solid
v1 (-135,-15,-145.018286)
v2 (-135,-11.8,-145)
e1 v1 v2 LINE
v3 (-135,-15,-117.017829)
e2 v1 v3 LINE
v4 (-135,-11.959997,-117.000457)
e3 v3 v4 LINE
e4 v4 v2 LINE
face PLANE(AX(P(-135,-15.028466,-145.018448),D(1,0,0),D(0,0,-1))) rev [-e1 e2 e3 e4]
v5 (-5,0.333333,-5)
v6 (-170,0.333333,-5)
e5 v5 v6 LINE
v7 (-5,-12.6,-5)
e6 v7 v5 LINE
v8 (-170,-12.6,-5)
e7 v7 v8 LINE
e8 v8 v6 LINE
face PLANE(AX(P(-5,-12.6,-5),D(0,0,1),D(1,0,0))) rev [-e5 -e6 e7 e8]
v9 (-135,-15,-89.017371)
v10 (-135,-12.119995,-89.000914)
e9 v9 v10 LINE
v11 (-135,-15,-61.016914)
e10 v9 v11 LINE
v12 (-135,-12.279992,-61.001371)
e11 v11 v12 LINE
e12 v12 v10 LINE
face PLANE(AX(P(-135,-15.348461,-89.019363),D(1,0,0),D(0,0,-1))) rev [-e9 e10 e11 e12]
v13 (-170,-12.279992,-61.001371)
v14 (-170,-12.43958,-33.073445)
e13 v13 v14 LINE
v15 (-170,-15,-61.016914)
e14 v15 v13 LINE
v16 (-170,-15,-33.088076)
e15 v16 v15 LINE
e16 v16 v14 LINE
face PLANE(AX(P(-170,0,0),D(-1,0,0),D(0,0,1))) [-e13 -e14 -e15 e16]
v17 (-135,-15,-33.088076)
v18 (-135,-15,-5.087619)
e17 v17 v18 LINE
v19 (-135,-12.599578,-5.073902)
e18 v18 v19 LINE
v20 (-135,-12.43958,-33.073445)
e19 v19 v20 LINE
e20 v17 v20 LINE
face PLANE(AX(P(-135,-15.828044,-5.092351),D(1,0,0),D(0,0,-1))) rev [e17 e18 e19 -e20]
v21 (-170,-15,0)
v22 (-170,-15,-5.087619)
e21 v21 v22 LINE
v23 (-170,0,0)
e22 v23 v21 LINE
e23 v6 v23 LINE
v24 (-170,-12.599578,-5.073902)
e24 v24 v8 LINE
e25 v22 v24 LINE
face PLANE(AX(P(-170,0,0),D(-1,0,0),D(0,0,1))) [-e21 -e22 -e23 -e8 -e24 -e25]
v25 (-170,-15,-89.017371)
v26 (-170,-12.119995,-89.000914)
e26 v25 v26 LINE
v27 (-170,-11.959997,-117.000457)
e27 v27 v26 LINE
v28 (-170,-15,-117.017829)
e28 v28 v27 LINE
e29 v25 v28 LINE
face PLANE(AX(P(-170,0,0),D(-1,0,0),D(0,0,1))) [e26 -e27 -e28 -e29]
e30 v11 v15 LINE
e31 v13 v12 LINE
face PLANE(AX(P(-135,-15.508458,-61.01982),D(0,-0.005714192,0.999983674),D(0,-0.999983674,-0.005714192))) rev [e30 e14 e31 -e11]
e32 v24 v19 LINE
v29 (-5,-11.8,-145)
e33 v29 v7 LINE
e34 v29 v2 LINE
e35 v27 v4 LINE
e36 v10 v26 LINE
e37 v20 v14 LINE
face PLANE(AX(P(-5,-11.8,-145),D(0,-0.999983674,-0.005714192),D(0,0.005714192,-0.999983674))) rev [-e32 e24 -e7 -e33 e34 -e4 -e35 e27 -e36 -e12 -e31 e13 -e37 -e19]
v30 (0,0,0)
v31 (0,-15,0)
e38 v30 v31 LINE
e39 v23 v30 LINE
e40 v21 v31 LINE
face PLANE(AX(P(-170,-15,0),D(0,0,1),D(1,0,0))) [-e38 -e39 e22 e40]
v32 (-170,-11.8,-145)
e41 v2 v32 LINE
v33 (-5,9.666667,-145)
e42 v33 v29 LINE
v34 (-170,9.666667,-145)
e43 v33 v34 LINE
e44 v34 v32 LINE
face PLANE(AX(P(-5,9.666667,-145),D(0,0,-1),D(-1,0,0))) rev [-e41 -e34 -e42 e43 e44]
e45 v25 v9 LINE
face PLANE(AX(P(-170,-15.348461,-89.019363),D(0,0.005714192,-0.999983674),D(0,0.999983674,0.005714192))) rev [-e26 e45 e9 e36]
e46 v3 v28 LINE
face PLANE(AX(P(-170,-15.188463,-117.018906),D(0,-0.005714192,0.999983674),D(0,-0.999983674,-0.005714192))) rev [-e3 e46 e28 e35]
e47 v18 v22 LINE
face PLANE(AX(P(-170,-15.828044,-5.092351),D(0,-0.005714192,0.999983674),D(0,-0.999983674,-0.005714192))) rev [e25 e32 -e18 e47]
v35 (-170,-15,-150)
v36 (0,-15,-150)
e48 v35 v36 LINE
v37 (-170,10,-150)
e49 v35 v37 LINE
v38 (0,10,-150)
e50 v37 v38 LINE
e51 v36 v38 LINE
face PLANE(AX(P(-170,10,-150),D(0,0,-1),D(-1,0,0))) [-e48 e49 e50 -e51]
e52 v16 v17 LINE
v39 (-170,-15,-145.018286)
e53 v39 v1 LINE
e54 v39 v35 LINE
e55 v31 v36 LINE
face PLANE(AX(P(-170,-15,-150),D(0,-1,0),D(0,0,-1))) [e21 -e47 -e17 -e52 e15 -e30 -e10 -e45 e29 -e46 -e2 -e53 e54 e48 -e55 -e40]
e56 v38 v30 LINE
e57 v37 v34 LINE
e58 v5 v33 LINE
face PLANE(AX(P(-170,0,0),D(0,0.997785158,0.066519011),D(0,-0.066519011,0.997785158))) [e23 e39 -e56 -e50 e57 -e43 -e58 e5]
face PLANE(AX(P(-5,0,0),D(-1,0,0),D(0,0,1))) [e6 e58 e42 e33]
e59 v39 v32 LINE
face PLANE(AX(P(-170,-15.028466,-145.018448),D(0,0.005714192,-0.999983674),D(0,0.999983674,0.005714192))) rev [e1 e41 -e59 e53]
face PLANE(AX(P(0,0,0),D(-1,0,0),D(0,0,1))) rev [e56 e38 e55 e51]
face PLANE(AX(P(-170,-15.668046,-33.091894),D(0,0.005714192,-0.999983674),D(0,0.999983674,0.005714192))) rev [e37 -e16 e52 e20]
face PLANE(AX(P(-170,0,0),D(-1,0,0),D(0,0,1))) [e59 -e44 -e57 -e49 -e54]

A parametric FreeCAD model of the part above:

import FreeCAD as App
import Part
import Sketcher
from FreeCAD import Vector
Q = App.Units.Quantity

doc = App.newDocument("Part")
body = doc.addObject("PartDesign::Body", "Body")

# Sketch on YZ plane
sketch1 = doc.addObject("Sketcher::SketchObject", "Sketch")
body.addObject(sketch1)
sketch1.AttachmentSupport = (doc.YZ_Plane, [""])
sketch1.MapMode = "FlatFace"
sketch1.addGeometry(Part.LineSegment(Vector(-15, -150, 0), Vector(10, -150, 0)), False)
sketch1.addGeometry(Part.LineSegment(Vector(10, -150, 0), Vector(0, 0, 0)), False)
sketch1.addGeometry(Part.LineSegment(Vector(0, 0, 0), Vector(-15, 0, 0)), False)
sketch1.addGeometry(Part.LineSegment(Vector(-15, 0, 0), Vector(-15, -150, 0)), False)
sketch1.addConstraint(Sketcher.Constraint("Coincident", 0, 2, 1, 1))
sketch1.addConstraint(Sketcher.Constraint("Coincident", 1, 2, 2, 1))
sketch1.addConstraint(Sketcher.Constraint("Coincident", 2, 2, 3, 1))
sketch1.addConstraint(Sketcher.Constraint("Coincident", 3, 2, 0, 1))
sketch1.addConstraint(Sketcher.Constraint("Horizontal", 0))
sketch1.addConstraint(Sketcher.Constraint("Horizontal", 2))
sketch1.addConstraint(Sketcher.Constraint("Vertical", 3))
sketch1.addConstraint(Sketcher.Constraint("Coincident", 1, 2, -1, 1))
sketch1.addConstraint(Sketcher.Constraint("DistanceX", 0, 1, 0, 2, Q("25 mm")))
sketch1.addConstraint(Sketcher.Constraint("DistanceX", 2, 2, 2, 1, Q("15 mm")))
sketch1.addConstraint(Sketcher.Constraint("DistanceY", 3, 2, 3, 1, Q("150 mm")))
pad1 = doc.addObject("PartDesign::Pad", "Pad")
body.addObject(pad1)
pad1.Profile = sketch1
pad1.Length = 170
pad1.Reversed = True

# Sketch on YZ plane
sketch2 = doc.addObject("Sketcher::SketchObject", "Sketch001")
body.addObject(sketch2)
sketch2.AttachmentSupport = (doc.YZ_Plane, [""])
sketch2.MapMode = "FlatFace"
sketch2.AttachmentOffset = App.Placement(Vector(0, 0, -170), App.Rotation())
sketch2.addGeometry(Part.LineSegment(Vector(9.666667, -145, 0), Vector(-11.8, -145, 0)), False)
sketch2.addGeometry(Part.LineSegment(Vector(-11.8, -145, 0), Vector(-12.6, -5, 0)), False)
sketch2.addGeometry(Part.LineSegment(Vector(-12.6, -5, 0), Vector(0.333333, -5, 0)), False)
sketch2.addGeometry(Part.LineSegment(Vector(0.333333, -5, 0), Vector(9.666667, -145, 0)), False)
sketch2.addConstraint(Sketcher.Constraint("Coincident", 0, 2, 1, 1))
sketch2.addConstraint(Sketcher.Constraint("Coincident", 1, 2, 2, 1))
sketch2.addConstraint(Sketcher.Constraint("Coincident", 2, 2, 3, 1))
sketch2.addConstraint(Sketcher.Constraint("Coincident", 3, 2, 0, 1))
sketch2.addConstraint(Sketcher.Constraint("Horizontal", 0))
sketch2.addConstraint(Sketcher.Constraint("Horizontal", 2))
sketch2.addConstraint(Sketcher.Constraint("DistanceY", 0, 2, -1, 1, Q("145 mm")))
sketch2.addConstraint(Sketcher.Constraint("DistanceY", 1, 2, -1, 1, Q("5 mm")))
sketch2.addConstraint(Sketcher.Constraint("DistanceX", 0, 2, -1, 1, Q("11.8 mm")))
sketch2.addConstraint(Sketcher.Constraint("DistanceX", 1, 2, -1, 1, Q("12.6 mm")))
sketch2.addConstraint(Sketcher.Constraint("DistanceX", 0, 2, 0, 1, Q("21.466667 mm")))
sketch2.addConstraint(Sketcher.Constraint("DistanceX", 2, 1, 2, 2, Q("12.933333 mm")))
pocket1 = doc.addObject("PartDesign::Pocket", "Pocket")
body.addObject(pocket1)
pocket1.Profile = sketch2
pocket1.Length = 165
pocket1.Reversed = True

# Sketch on an angled plane
sketch3 = doc.addObject("Sketcher::SketchObject", "Sketch002")
body.addObject(sketch3)
sketch3.Placement = App.Placement(Vector(0, -12.628159, -0.072161), App.Rotation(Vector(1, 0, 0), Vector(0, 0.005714192, -0.999983674), Vector(0, 0.999983674, 0.005714192), "ZXY"))
sketch3.addGeometry(Part.LineSegment(Vector(-170, 144.930205, 0), Vector(-170, 116.930205, 0)), False)
sketch3.addGeometry(Part.LineSegment(Vector(-170, 116.930205, 0), Vector(-135, 116.930205, 0)), False)
sketch3.addGeometry(Part.LineSegment(Vector(-135, 116.930205, 0), Vector(-135, 144.930205, 0)), False)
sketch3.addGeometry(Part.LineSegment(Vector(-135, 144.930205, 0), Vector(-170, 144.930205, 0)), False)
sketch3.addConstraint(Sketcher.Constraint("Coincident", 0, 2, 1, 1))
sketch3.addConstraint(Sketcher.Constraint("Coincident", 1, 2, 2, 1))
sketch3.addConstraint(Sketcher.Constraint("Coincident", 2, 2, 3, 1))
sketch3.addConstraint(Sketcher.Constraint("Coincident", 3, 2, 0, 1))
sketch3.addConstraint(Sketcher.Constraint("Vertical", 0))
sketch3.addConstraint(Sketcher.Constraint("Horizontal", 1))
sketch3.addConstraint(Sketcher.Constraint("Vertical", 2))
sketch3.addConstraint(Sketcher.Constraint("Horizontal", 3))
sketch3.addConstraint(Sketcher.Constraint("DistanceX", 1, 1, 1, 2, Q("35 mm")))
sketch3.addConstraint(Sketcher.Constraint("DistanceY", 0, 2, 0, 1, Q("28 mm")))
sketch3.addConstraint(Sketcher.Constraint("DistanceX", 0, 2, -1, 1, Q("170 mm")))
sketch3.addConstraint(Sketcher.Constraint("DistanceY", -1, 1, 0, 2, Q("116.930205 mm")))
pocket2 = doc.addObject("PartDesign::Pocket", "Pocket001")
body.addObject(pocket2)
pocket2.Profile = sketch3
pocket2.Type = "ThroughAll"

# Sketch on an angled plane
sketch4 = doc.addObject("Sketcher::SketchObject", "Sketch003")
body.addObject(sketch4)
sketch4.Placement = App.Placement(Vector(0, -12.628159, -0.072161), App.Rotation(Vector(1, 0, 0), Vector(0, 0.005714192, -0.999983674), Vector(0, 0.999983674, 0.005714192), "ZXY"))
sketch4.addGeometry(Part.LineSegment(Vector(-170, 88.930205, 0), Vector(-170, 60.930205, 0)), False)
sketch4.addGeometry(Part.LineSegment(Vector(-170, 60.930205, 0), Vector(-135, 60.930205, 0)), False)
sketch4.addGeometry(Part.LineSegment(Vector(-135, 60.930205, 0), Vector(-135, 88.930205, 0)), False)
sketch4.addGeometry(Part.LineSegment(Vector(-135, 88.930205, 0), Vector(-170, 88.930205, 0)), False)
sketch4.addConstraint(Sketcher.Constraint("Coincident", 0, 2, 1, 1))
sketch4.addConstraint(Sketcher.Constraint("Coincident", 1, 2, 2, 1))
sketch4.addConstraint(Sketcher.Constraint("Coincident", 2, 2, 3, 1))
sketch4.addConstraint(Sketcher.Constraint("Coincident", 3, 2, 0, 1))
sketch4.addConstraint(Sketcher.Constraint("Vertical", 0))
sketch4.addConstraint(Sketcher.Constraint("Horizontal", 1))
sketch4.addConstraint(Sketcher.Constraint("Vertical", 2))
sketch4.addConstraint(Sketcher.Constraint("Horizontal", 3))
sketch4.addConstraint(Sketcher.Constraint("DistanceX", 1, 1, 1, 2, Q("35 mm")))
sketch4.addConstraint(Sketcher.Constraint("DistanceY", 0, 2, 0, 1, Q("28 mm")))
sketch4.addConstraint(Sketcher.Constraint("DistanceX", 0, 2, -1, 1, Q("170 mm")))
sketch4.addConstraint(Sketcher.Constraint("DistanceY", -1, 1, 0, 2, Q("60.930205 mm")))
pocket3 = doc.addObject("PartDesign::Pocket", "Pocket002")
body.addObject(pocket3)
pocket3.Profile = sketch4
pocket3.Type = "ThroughAll"

# Sketch on an angled plane
sketch5 = doc.addObject("Sketcher::SketchObject", "Sketch004")
body.addObject(sketch5)
sketch5.Placement = App.Placement(Vector(0, -12.628159, -0.072161), App.Rotation(Vector(1, 0, 0), Vector(0, 0.005714192, -0.999983674), Vector(0, 0.999983674, 0.005714192), "ZXY"))
sketch5.addGeometry(Part.LineSegment(Vector(-170, 33.001823, 0), Vector(-170, 5.001823, 0)), False)
sketch5.addGeometry(Part.LineSegment(Vector(-170, 5.001823, 0), Vector(-135, 5.001823, 0)), False)
sketch5.addGeometry(Part.LineSegment(Vector(-135, 5.001823, 0), Vector(-135, 33.001823, 0)), False)
sketch5.addGeometry(Part.LineSegment(Vector(-135, 33.001823, 0), Vector(-170, 33.001823, 0)), False)
sketch5.addConstraint(Sketcher.Constraint("Coincident", 0, 2, 1, 1))
sketch5.addConstraint(Sketcher.Constraint("Coincident", 1, 2, 2, 1))
sketch5.addConstraint(Sketcher.Constraint("Coincident", 2, 2, 3, 1))
sketch5.addConstraint(Sketcher.Constraint("Coincident", 3, 2, 0, 1))
sketch5.addConstraint(Sketcher.Constraint("Vertical", 0))
sketch5.addConstraint(Sketcher.Constraint("Horizontal", 1))
sketch5.addConstraint(Sketcher.Constraint("Vertical", 2))
sketch5.addConstraint(Sketcher.Constraint("Horizontal", 3))
sketch5.addConstraint(Sketcher.Constraint("DistanceX", 1, 1, 1, 2, Q("35 mm")))
sketch5.addConstraint(Sketcher.Constraint("DistanceY", 0, 2, 0, 1, Q("28 mm")))
sketch5.addConstraint(Sketcher.Constraint("DistanceX", 0, 2, -1, 1, Q("170 mm")))
sketch5.addConstraint(Sketcher.Constraint("DistanceY", -1, 1, 0, 2, Q("5.001823 mm")))
pocket4 = doc.addObject("PartDesign::Pocket", "Pocket003")
body.addObject(pocket4)
pocket4.Profile = sketch5
pocket4.Type = "ThroughAll"

doc.recompute()
